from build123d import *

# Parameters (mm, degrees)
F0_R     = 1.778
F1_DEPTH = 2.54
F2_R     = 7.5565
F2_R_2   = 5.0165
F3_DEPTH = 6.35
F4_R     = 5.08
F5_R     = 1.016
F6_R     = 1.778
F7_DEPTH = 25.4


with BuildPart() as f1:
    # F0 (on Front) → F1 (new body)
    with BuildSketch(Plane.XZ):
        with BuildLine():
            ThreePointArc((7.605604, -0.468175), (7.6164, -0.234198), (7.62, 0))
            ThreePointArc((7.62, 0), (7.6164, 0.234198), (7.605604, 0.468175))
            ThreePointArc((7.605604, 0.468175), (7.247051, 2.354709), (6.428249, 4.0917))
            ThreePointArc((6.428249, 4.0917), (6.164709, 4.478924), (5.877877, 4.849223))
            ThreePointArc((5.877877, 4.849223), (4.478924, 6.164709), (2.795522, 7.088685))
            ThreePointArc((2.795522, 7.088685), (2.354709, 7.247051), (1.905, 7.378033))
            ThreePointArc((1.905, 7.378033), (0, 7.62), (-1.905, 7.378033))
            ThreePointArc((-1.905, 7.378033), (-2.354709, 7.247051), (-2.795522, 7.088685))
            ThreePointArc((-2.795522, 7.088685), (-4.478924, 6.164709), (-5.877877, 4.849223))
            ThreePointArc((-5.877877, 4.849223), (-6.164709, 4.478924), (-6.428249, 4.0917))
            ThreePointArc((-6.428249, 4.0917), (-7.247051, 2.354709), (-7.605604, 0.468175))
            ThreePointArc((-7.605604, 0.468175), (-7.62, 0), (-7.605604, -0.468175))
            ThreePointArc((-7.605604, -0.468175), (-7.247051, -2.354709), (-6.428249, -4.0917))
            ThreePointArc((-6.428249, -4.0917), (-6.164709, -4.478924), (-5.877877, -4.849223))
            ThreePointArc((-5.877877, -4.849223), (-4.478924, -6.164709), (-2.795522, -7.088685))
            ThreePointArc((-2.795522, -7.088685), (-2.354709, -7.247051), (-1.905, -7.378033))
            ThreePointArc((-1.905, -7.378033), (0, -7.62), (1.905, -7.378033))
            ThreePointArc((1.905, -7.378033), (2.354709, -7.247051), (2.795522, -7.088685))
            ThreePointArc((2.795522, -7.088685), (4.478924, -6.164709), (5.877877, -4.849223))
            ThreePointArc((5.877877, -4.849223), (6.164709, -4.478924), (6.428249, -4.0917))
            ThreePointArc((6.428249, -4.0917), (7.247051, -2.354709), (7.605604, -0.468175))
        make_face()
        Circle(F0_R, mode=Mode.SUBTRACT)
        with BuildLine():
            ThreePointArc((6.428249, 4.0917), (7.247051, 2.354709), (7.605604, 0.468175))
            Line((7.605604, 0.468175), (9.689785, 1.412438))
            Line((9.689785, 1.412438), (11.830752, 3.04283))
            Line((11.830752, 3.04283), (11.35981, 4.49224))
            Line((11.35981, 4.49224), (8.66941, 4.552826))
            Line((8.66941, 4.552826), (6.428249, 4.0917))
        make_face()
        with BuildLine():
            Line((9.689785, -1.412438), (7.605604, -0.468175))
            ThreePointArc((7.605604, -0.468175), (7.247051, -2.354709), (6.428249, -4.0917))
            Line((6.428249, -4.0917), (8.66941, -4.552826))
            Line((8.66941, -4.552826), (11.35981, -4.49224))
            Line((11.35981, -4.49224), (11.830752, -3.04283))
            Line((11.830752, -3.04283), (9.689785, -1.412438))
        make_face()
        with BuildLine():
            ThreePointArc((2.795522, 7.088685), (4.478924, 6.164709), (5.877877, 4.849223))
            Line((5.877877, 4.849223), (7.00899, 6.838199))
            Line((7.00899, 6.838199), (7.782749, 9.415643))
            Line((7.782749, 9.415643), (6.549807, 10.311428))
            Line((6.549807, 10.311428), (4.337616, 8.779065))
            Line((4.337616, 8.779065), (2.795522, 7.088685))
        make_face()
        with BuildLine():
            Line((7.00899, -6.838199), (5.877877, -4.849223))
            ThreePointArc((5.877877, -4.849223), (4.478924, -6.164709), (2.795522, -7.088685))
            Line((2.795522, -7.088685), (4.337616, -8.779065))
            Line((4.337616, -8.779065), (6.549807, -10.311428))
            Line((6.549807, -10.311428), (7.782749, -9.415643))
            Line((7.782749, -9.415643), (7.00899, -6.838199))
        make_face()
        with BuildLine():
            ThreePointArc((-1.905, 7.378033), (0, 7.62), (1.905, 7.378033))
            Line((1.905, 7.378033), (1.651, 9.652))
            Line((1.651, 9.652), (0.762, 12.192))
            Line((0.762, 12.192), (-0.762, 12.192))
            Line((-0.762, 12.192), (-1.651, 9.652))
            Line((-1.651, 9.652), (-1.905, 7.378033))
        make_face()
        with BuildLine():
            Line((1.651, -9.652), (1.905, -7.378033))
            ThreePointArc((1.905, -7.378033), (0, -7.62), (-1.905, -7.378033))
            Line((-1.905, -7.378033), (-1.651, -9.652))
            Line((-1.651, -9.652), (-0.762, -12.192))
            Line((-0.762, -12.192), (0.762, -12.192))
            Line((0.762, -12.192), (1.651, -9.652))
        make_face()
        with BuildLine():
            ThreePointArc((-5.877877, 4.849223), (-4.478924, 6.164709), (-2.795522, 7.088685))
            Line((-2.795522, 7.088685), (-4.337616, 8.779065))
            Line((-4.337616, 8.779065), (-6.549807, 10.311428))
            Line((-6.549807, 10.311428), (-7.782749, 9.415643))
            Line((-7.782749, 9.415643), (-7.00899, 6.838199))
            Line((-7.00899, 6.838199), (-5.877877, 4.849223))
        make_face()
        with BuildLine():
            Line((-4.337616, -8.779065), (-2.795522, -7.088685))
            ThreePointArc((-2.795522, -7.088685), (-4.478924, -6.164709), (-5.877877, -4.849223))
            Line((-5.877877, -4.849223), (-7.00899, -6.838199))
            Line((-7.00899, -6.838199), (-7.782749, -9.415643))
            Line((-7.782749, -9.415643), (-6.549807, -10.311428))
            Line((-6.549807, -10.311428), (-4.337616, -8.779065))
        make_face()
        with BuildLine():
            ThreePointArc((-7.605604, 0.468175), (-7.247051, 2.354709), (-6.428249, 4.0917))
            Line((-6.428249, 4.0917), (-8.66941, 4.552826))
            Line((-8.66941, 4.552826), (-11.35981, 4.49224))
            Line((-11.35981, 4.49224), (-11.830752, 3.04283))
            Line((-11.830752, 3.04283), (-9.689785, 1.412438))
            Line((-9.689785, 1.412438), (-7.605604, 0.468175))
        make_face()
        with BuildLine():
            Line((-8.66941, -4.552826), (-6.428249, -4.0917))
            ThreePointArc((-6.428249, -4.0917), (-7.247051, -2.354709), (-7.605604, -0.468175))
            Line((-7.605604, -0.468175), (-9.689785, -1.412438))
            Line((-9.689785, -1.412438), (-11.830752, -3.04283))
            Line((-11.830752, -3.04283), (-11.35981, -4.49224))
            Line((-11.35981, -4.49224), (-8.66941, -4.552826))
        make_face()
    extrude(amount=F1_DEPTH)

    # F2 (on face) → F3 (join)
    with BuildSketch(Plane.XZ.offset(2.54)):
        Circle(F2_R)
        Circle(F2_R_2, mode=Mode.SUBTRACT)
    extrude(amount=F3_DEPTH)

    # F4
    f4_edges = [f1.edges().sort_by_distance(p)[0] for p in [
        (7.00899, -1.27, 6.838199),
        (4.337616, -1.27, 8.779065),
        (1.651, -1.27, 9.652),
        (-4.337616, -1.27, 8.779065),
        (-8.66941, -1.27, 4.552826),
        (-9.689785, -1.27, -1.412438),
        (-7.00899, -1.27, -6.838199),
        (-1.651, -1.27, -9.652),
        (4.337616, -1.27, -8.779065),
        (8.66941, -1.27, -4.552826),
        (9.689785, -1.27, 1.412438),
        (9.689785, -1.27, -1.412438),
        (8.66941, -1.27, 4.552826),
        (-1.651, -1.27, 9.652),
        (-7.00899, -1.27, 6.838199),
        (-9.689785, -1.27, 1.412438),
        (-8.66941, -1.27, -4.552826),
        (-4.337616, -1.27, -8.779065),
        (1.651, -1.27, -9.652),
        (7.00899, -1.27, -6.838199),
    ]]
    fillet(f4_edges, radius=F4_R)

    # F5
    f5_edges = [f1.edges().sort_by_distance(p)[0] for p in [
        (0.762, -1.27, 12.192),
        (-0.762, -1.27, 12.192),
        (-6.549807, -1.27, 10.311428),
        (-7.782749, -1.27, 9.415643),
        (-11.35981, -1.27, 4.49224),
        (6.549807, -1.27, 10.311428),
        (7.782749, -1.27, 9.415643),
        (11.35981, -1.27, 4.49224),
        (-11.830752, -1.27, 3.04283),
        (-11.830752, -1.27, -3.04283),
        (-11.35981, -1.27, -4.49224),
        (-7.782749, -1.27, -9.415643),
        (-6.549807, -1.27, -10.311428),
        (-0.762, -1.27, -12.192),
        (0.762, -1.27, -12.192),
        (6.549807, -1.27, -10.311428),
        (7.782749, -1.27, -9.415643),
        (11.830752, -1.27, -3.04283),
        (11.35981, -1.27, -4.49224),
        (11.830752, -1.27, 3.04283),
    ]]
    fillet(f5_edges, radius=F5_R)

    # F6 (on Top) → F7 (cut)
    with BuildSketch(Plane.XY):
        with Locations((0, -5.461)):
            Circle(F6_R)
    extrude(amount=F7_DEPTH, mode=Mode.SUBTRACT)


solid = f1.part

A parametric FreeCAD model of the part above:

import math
import FreeCAD as App
import Part
import Sketcher
Q = App.Units.Quantity


def edges_at(feature, points):
    """Names of the edges that pass closest to the given points."""
    edges = feature.Shape.Edges
    near = lambda p: min(range(len(edges)), key=lambda i: edges[i].distToShape(Part.Vertex(*p))[0])
    return sorted({f"Edge{near(p) + 1}" for p in points})

doc = App.newDocument("Part")
body = doc.addObject("PartDesign::Body", "Body")

# Sketch on XZ plane
sketch1 = body.newObject("Sketcher::SketchObject", "Sketch")
sketch1.AttachmentSupport = (doc.getObject("XZ_Plane"), [""])
sketch1.MapMode = "FlatFace"
sketch1.addGeometry([
    Part.ArcOfCircle(Part.Circle(App.Vector(-0.000327, 0.00001, 0), App.Vector(0, 0, 1), 7.620327), math.radians(-3.522412), math.radians(-0.000075)),  # 0
    Part.ArcOfCircle(Part.Circle(App.Vector(-0.000327, -0.00001, 0), App.Vector(0, 0, 1), 7.620327), math.radians(0.000075), math.radians(3.522412)),  # 1
    Part.LineSegment(App.Vector(7.605604, 0.468175, 0), App.Vector(9.689785, 1.412438, 0)),  # 2
    Part.LineSegment(App.Vector(9.689785, 1.412438, 0), App.Vector(11.830752, 3.04283, 0)),  # 3
    Part.LineSegment(App.Vector(11.830752, 3.04283, 0), App.Vector(11.35981, 4.49224, 0)),  # 4
    Part.LineSegment(App.Vector(11.35981, 4.49224, 0), App.Vector(8.66941, 4.552826, 0)),  # 5
    Part.LineSegment(App.Vector(8.66941, 4.552826, 0), App.Vector(6.428249, 4.0917, 0)),  # 6
    Part.ArcOfCircle(Part.Circle(App.Vector(-0.000021, -0.00001, 0), App.Vector(0, 0, 1), 7.620023), math.radians(32.477491), math.radians(39.522442)),  # 7
    Part.LineSegment(App.Vector(5.877877, 4.849223, 0), App.Vector(7.00899, 6.838199, 0)),  # 8
    Part.LineSegment(App.Vector(7.00899, 6.838199, 0), App.Vector(7.782749, 9.415643, 0)),  # 9
    Part.LineSegment(App.Vector(7.782749, 9.415643, 0), App.Vector(6.549807, 10.311428, 0)),  # 10
    Part.LineSegment(App.Vector(6.549807, 10.311428, 0), App.Vector(4.337616, 8.779065, 0)),  # 11
    Part.LineSegment(App.Vector(4.337616, 8.779065, 0), App.Vector(2.795522, 7.088685, 0)),  # 12
    Part.ArcOfCircle(Part.Circle(App.Vector(0.000061, 0.000183, 0), App.Vector(0, 0, 1), 7.619807), math.radians(68.47743), math.radians(75.522586)),  # 13
    Part.LineSegment(App.Vector(1.905, 7.378033, 0), App.Vector(1.651, 9.652, 0)),  # 14
    Part.LineSegment(App.Vector(1.651, 9.652, 0), App.Vector(0.762, 12.192, 0)),  # 15
    Part.LineSegment(App.Vector(0.762, 12.192, 0), App.Vector(-0.762, 12.192, 0)),  # 16
    Part.LineSegment(App.Vector(-0.762, 12.192, 0), App.Vector(-1.651, 9.652, 0)),  # 17
    Part.LineSegment(App.Vector(-1.651, 9.652, 0), App.Vector(-1.905, 7.378033, 0)),  # 18
    Part.ArcOfCircle(Part.Circle(App.Vector(-0.000061, 0.000183, 0), App.Vector(0, 0, 1), 7.619807), math.radians(104.477414), math.radians(111.52257)),  # 19
    Part.LineSegment(App.Vector(-2.795522, 7.088685, 0), App.Vector(-4.337616, 8.779065, 0)),  # 20
    Part.LineSegment(App.Vector(-4.337616, 8.779065, 0), App.Vector(-6.549807, 10.311428, 0)),  # 21
    Part.LineSegment(App.Vector(-6.549807, 10.311428, 0), App.Vector(-7.782749, 9.415643, 0)),  # 22
    Part.LineSegment(App.Vector(-7.782749, 9.415643, 0), App.Vector(-7.00899, 6.838199, 0)),  # 23
    Part.LineSegment(App.Vector(-7.00899, 6.838199, 0), App.Vector(-5.877877, 4.849223, 0)),  # 24
    Part.ArcOfCircle(Part.Circle(App.Vector(0.000021, -0.00001, 0), App.Vector(0, 0, 1), 7.620023), math.radians(140.477558), math.radians(147.522509)),  # 25
    Part.LineSegment(App.Vector(-6.428249, 4.0917, 0), App.Vector(-8.66941, 4.552826, 0)),  # 26
    Part.LineSegment(App.Vector(-8.66941, 4.552826, 0), App.Vector(-11.35981, 4.49224, 0)),  # 27
    Part.LineSegment(App.Vector(-11.35981, 4.49224, 0), App.Vector(-11.830752, 3.04283, 0)),  # 28
    Part.LineSegment(App.Vector(-11.830752, 3.04283, 0), App.Vector(-9.689785, 1.412438, 0)),  # 29
    Part.LineSegment(App.Vector(-9.689785, 1.412438, 0), App.Vector(-7.605604, 0.468175, 0)),  # 30
    Part.ArcOfCircle(Part.Circle(App.Vector(0.000001, 0, 0), App.Vector(0, 0, 1), 7.620001), math.radians(176.477513), math.radians(183.522487)),  # 31
    Part.LineSegment(App.Vector(-7.605604, -0.468175, 0), App.Vector(-9.689785, -1.412438, 0)),  # 32
    Part.LineSegment(App.Vector(-9.689785, -1.412438, 0), App.Vector(-11.830752, -3.04283, 0)),  # 33
    Part.LineSegment(App.Vector(-11.830752, -3.04283, 0), App.Vector(-11.35981, -4.49224, 0)),  # 34
    Part.LineSegment(App.Vector(-11.35981, -4.49224, 0), App.Vector(-8.66941, -4.552826, 0)),  # 35
    Part.LineSegment(App.Vector(-8.66941, -4.552826, 0), App.Vector(-6.428249, -4.0917, 0)),  # 36
    Part.ArcOfCircle(Part.Circle(App.Vector(0.000021, 0.00001, 0), App.Vector(0, 0, 1), 7.620023), math.radians(-147.522509), math.radians(-140.477558)),  # 37
    Part.LineSegment(App.Vector(-5.877877, -4.849223, 0), App.Vector(-7.00899, -6.838199, 0)),  # 38
    Part.LineSegment(App.Vector(-7.00899, -6.838199, 0), App.Vector(-7.782749, -9.415643, 0)),  # 39
    Part.LineSegment(App.Vector(-7.782749, -9.415643, 0), App.Vector(-6.549807, -10.311428, 0)),  # 40
    Part.LineSegment(App.Vector(-6.549807, -10.311428, 0), App.Vector(-4.337616, -8.779065, 0)),  # 41
    Part.LineSegment(App.Vector(-4.337616, -8.779065, 0), App.Vector(-2.795522, -7.088685, 0)),  # 42
    Part.ArcOfCircle(Part.Circle(App.Vector(-0.000061, -0.000183, 0), App.Vector(0, 0, 1), 7.619807), math.radians(-111.52257), math.radians(-104.477414)),  # 43
    Part.LineSegment(App.Vector(-1.905, -7.378033, 0), App.Vector(-1.651, -9.652, 0)),  # 44
    Part.LineSegment(App.Vector(-1.651, -9.652, 0), App.Vector(-0.762, -12.192, 0)),  # 45
    Part.LineSegment(App.Vector(-0.762, -12.192, 0), App.Vector(0.762, -12.192, 0)),  # 46
    Part.LineSegment(App.Vector(0.762, -12.192, 0), App.Vector(1.651, -9.652, 0)),  # 47
    Part.LineSegment(App.Vector(1.651, -9.652, 0), App.Vector(1.905, -7.378033, 0)),  # 48
    Part.ArcOfCircle(Part.Circle(App.Vector(0.000061, -0.000183, 0), App.Vector(0, 0, 1), 7.619807), math.radians(-75.522586), math.radians(-68.47743)),  # 49
    Part.LineSegment(App.Vector(2.795522, -7.088685, 0), App.Vector(4.337616, -8.779065, 0)),  # 50
    Part.LineSegment(App.Vector(4.337616, -8.779065, 0), App.Vector(6.549807, -10.311428, 0)),  # 51
    Part.LineSegment(App.Vector(6.549807, -10.311428, 0), App.Vector(7.782749, -9.415643, 0)),  # 52
    Part.LineSegment(App.Vector(7.782749, -9.415643, 0), App.Vector(7.00899, -6.838199, 0)),  # 53
    Part.LineSegment(App.Vector(7.00899, -6.838199, 0), App.Vector(5.877877, -4.849223, 0)),  # 54
    Part.ArcOfCircle(Part.Circle(App.Vector(-0.000021, 0.00001, 0), App.Vector(0, 0, 1), 7.620023), math.radians(-39.522442), math.radians(-32.477491)),  # 55
    Part.LineSegment(App.Vector(6.428249, -4.0917, 0), App.Vector(8.66941, -4.552826, 0)),  # 56
    Part.LineSegment(App.Vector(8.66941, -4.552826, 0), App.Vector(11.35981, -4.49224, 0)),  # 57
    Part.LineSegment(App.Vector(11.35981, -4.49224, 0), App.Vector(11.830752, -3.04283, 0)),  # 58
    Part.LineSegment(App.Vector(11.830752, -3.04283, 0), App.Vector(9.689785, -1.412438, 0)),  # 59
    Part.LineSegment(App.Vector(9.689785, -1.412438, 0), App.Vector(7.605604, -0.468175, 0)),  # 60
    Part.Circle(App.Vector(0, 0, 0), App.Vector(0, 0, 1), 1.778),  # 61
], False)
sketch1.addConstraint([
    Sketcher.Constraint("Coincident", 0, 2, 1, 1),
    Sketcher.Constraint("Coincident", 1, 2, 2, 1),
    Sketcher.Constraint("Coincident", 2, 2, 3, 1),
    Sketcher.Constraint("Coincident", 3, 2, 4, 1),
    Sketcher.Constraint("Coincident", 4, 2, 5, 1),
    Sketcher.Constraint("Coincident", 5, 2, 6, 1),
    Sketcher.Constraint("Coincident", 6, 2, 7, 1),
    Sketcher.Constraint("Coincident", 7, 2, 8, 1),
    Sketcher.Constraint("Coincident", 8, 2, 9, 1),
    Sketcher.Constraint("Coincident", 9, 2, 10, 1),
    Sketcher.Constraint("Coincident", 10, 2, 11, 1),
    Sketcher.Constraint("Coincident", 11, 2, 12, 1),
    Sketcher.Constraint("Coincident", 12, 2, 13, 1),
    Sketcher.Constraint("Coincident", 13, 2, 14, 1),
    Sketcher.Constraint("Coincident", 14, 2, 15, 1),
    Sketcher.Constraint("Coincident", 15, 2, 16, 1),
    Sketcher.Constraint("Coincident", 16, 2, 17, 1),
    Sketcher.Constraint("Coincident", 17, 2, 18, 1),
    Sketcher.Constraint("Coincident", 18, 2, 19, 1),
    Sketcher.Constraint("Coincident", 19, 2, 20, 1),
    Sketcher.Constraint("Coincident", 20, 2, 21, 1),
    Sketcher.Constraint("Coincident", 21, 2, 22, 1),
    Sketcher.Constraint("Coincident", 22, 2, 23, 1),
    Sketcher.Constraint("Coincident", 23, 2, 24, 1),
    Sketcher.Constraint("Coincident", 24, 2, 25, 1),
    Sketcher.Constraint("Coincident", 25, 2, 26, 1),
    Sketcher.Constraint("Coincident", 26, 2, 27, 1),
    Sketcher.Constraint("Coincident", 27, 2, 28, 1),
    Sketcher.Constraint("Coincident", 28, 2, 29, 1),
    Sketcher.Constraint("Coincident", 29, 2, 30, 1),
    Sketcher.Constraint("Coincident", 30, 2, 31, 1),
    Sketcher.Constraint("Coincident", 31, 2, 32, 1),
    Sketcher.Constraint("Coincident", 32, 2, 33, 1),
    Sketcher.Constraint("Coincident", 33, 2, 34, 1),
    Sketcher.Constraint("Coincident", 34, 2, 35, 1),
    Sketcher.Constraint("Coincident", 35, 2, 36, 1),
    Sketcher.Constraint("Coincident", 36, 2, 37, 1),
    Sketcher.Constraint("Coincident", 37, 2, 38, 1),
    Sketcher.Constraint("Coincident", 38, 2, 39, 1),
    Sketcher.Constraint("Coincident", 39, 2, 40, 1),
    Sketcher.Constraint("Coincident", 40, 2, 41, 1),
    Sketcher.Constraint("Coincident", 41, 2, 42, 1),
    Sketcher.Constraint("Coincident", 42, 2, 43, 1),
    Sketcher.Constraint("Coincident", 43, 2, 44, 1),
    Sketcher.Constraint("Coincident", 44, 2, 45, 1),
    Sketcher.Constraint("Coincident", 45, 2, 46, 1),
    Sketcher.Constraint("Coincident", 46, 2, 47, 1),
    Sketcher.Constraint("Coincident", 47, 2, 48, 1),
    Sketcher.Constraint("Coincident", 48, 2, 49, 1),
    Sketcher.Constraint("Coincident", 49, 2, 50, 1),
    Sketcher.Constraint("Coincident", 50, 2, 51, 1),
    Sketcher.Constraint("Coincident", 51, 2, 52, 1),
    Sketcher.Constraint("Coincident", 52, 2, 53, 1),
    Sketcher.Constraint("Coincident", 53, 2, 54, 1),
    Sketcher.Constraint("Coincident", 54, 2, 55, 1),
    Sketcher.Constraint("Coincident", 55, 2, 56, 1),
    Sketcher.Constraint("Coincident", 56, 2, 57, 1),
    Sketcher.Constraint("Coincident", 57, 2, 58, 1),
    Sketcher.Constraint("Coincident", 58, 2, 59, 1),
    Sketcher.Constraint("Coincident", 59, 2, 60, 1),
    Sketcher.Constraint("Coincident", 60, 2, 0, 1),
    Sketcher.Constraint("Horizontal", 16),
    Sketcher.Constraint("Horizontal", 46),
    Sketcher.Constraint("Coincident", 31, 3, -1, 1),
    Sketcher.Constraint("Coincident", 61, 3, -1, 1),
    Sketcher.Constraint("Equal", 0, 1),
    Sketcher.Constraint("Equal", 13, 19),
    Sketcher.Constraint("Equal", 7, 25),
    Sketcher.Constraint("Equal", 25, 37),
    Sketcher.Constraint("Equal", 19, 43),
    Sketcher.Constraint("Equal", 43, 49),
    Sketcher.Constraint("Equal", 37, 55),
    Sketcher.Constraint("Symmetric", 7, 3, 37, 3, -1, 1),
    Sketcher.Constraint("Symmetric", 13, 3, 43, 3, -1, 1),
    Sketcher.Constraint("Symmetric", 19, 3, 49, 3, -1, 1),
    Sketcher.Constraint("Symmetric", 25, 3, 55, 3, -1, 1),
    Sketcher.Constraint("Symmetric", 1, 2, 31, 2, -1, 1),
    Sketcher.Constraint("Symmetric", 2, 2, 32, 2, -1, 1),
    Sketcher.Constraint("Symmetric", 3, 2, 33, 2, -1, 1),
    Sketcher.Constraint("Symmetric", 4, 2, 34, 2, -1, 1),
    Sketcher.Constraint("Symmetric", 5, 2, 35, 2, -1, 1),
    Sketcher.Constraint("Symmetric", 8, 2, 38, 2, -1, 1),
    Sketcher.Constraint("Symmetric", 9, 2, 39, 2, -1, 1),
    Sketcher.Constraint("Symmetric", 10, 2, 40, 2, -1, 1),
    Sketcher.Constraint("Symmetric", 11, 2, 41, 2, -1, 1),
    Sketcher.Constraint("Symmetric", 14, 2, 44, 2, -1, 1),
    Sketcher.Constraint("Symmetric", 15, 2, 45, 2, -1, 1),
    Sketcher.Constraint("Symmetric", 17, 2, 47, 2, -1, 1),
    Sketcher.Constraint("Symmetric", 20, 2, 50, 2, -1, 1),
    Sketcher.Constraint("Symmetric", 21, 2, 51, 2, -1, 1),
    Sketcher.Constraint("Symmetric", 22, 2, 52, 2, -1, 1),
    Sketcher.Constraint("Symmetric", 23, 2, 53, 2, -1, 1),
    Sketcher.Constraint("Symmetric", 26, 2, 56, 2, -1, 1),
    Sketcher.Constraint("Symmetric", 27, 2, 57, 2, -1, 1),
    Sketcher.Constraint("Symmetric", 28, 2, 58, 2, -1, 1),
    Sketcher.Constraint("Symmetric", 29, 2, 59, 2, -1, 1),
    Sketcher.Constraint("Symmetric", 30, 2, 60, 2, -1, 1),
    Sketcher.Constraint("Symmetric", 13, 3, 19, 3, -2),
    Sketcher.Constraint("Symmetric", 7, 3, 25, 3, -2),
    Sketcher.Constraint("Symmetric", 14, 2, 17, 2, -2),
    Sketcher.Constraint("Symmetric", 11, 2, 20, 2, -2),
    Sketcher.Constraint("Symmetric", 10, 2, 21, 2, -2),
    Sketcher.Constraint("Symmetric", 9, 2, 22, 2, -2),
    Sketcher.Constraint("Symmetric", 8, 2, 23, 2, -2),
    Sketcher.Constraint("Symmetric", 5, 2, 26, 2, -2),
    Sketcher.Constraint("Symmetric", 4, 2, 27, 2, -2),
    Sketcher.Constraint("Symmetric", 3, 2, 28, 2, -2),
    Sketcher.Constraint("Symmetric", 2, 2, 29, 2, -2),
    Sketcher.Constraint("PointOnObject", 0, 2, -1),
    Sketcher.Constraint("Parallel", 6, 36),
    Sketcher.Constraint("Parallel", 8, 38),
    Sketcher.Constraint("Parallel", 12, 42),
    Sketcher.Constraint("Parallel", 14, 44),
    Sketcher.Constraint("Parallel", 17, 47),
    Sketcher.Constraint("Parallel", 18, 48),
    Sketcher.Constraint("Parallel", 20, 50),
    Sketcher.Constraint("Parallel", 24, 54),
    Sketcher.Constraint("Parallel", 26, 56),
    Sketcher.Constraint("Horizontal", 1, 3, 7, 3),
    Sketcher.Constraint("Horizontal", 13, 2, 18, 2),
    Sketcher.Constraint("Horizontal", 12, 2, 19, 2),
    Sketcher.Constraint("Horizontal", 7, 2, 24, 2),
    Sketcher.Constraint("Horizontal", 6, 2, 25, 2),
    Sketcher.Constraint("Horizontal", 1, 2, 30, 2),
    Sketcher.Constraint("Vertical", 16, 2, 45, 2),
    Sketcher.Constraint("Equal", 3, 5),
    Sketcher.Constraint("Equal", 2, 6),
    Sketcher.Constraint("Equal", 6, 8),
    Sketcher.Constraint("Equal", 5, 9),
    Sketcher.Constraint("Equal", 4, 10),
    Sketcher.Constraint("Equal", 9, 11),
    Sketcher.Constraint("Equal", 8, 12),
    Sketcher.Constraint("Equal", 12, 14),
    Sketcher.Constraint("Equal", 11, 15),
    Sketcher.Constraint("Radius", 31, Q("0.3 in")),
    Sketcher.Constraint("Diameter", 61, Q("0.14 in")),
    Sketcher.Constraint("Angle", 4, Q("108.000005 deg")),
    Sketcher.Constraint("Angle", 10, Q("143.999994 deg")),
    Sketcher.Constraint("DistanceX", 16, 2, 16, 1, Q("0.06 in")),
    Sketcher.Constraint("DistanceX", -1, 1, 0, 2, Q("0.3 in")),
    Sketcher.Constraint("Distance", 4, Q("0.06 in")),
    Sketcher.Constraint("DistanceY", -1, 1, 14, 2, Q("0.38 in")),
    Sketcher.Constraint("DistanceY", -1, 1, 15, 2, Q("0.48 in")),
    Sketcher.Constraint("DistanceX", -1, 1, 13, 2, Q("0.075 in")),
    Sketcher.Constraint("DistanceX", -1, 1, 14, 2, Q("0.065 in")),
    Sketcher.Constraint("Radius", 0, Q("7.620327 mm")),
    Sketcher.Constraint("Radius", 7, Q("7.620023 mm")),
    Sketcher.Constraint("Radius", 13, Q("7.619807 mm")),
    Sketcher.Constraint("DistanceY", -1, 1, 6, 2, Q("4.0917 mm")),
    Sketcher.Constraint("DistanceY", -1, 1, 8, 2, Q("6.838199 mm")),
    Sketcher.Constraint("Distance", 2, Q("2.288109 mm")),
    Sketcher.Constraint("DistanceY", -1, 1, 2, 2, Q("1.412438 mm")),
    Sketcher.Constraint("DistanceY", -1, 1, 3, 2, Q("3.04283 mm")),
    Sketcher.Constraint("DistanceX", -1, 1, 4, 2, Q("11.35981 mm")),
    Sketcher.Constraint("DistanceX", -1, 1, 5, 2, Q("8.66941 mm")),
    Sketcher.Constraint("DistanceX", -1, 1, 8, 2, Q("7.00899 mm")),
    Sketcher.Constraint("DistanceX", -1, 1, 9, 2, Q("7.782749 mm")),
    Sketcher.Constraint("DistanceX", 19, 2, -1, 1, Q("2.795522 mm")),
    Sketcher.Constraint("DistanceY", -1, 1, 13, 3, Q("0.000183 mm")),
])
pad1 = body.newObject("PartDesign::Pad", "Pad")
pad1.Profile = sketch1
pad1.Length = Q("0.1 in")

# Sketch on XZ plane
sketch2 = body.newObject("Sketcher::SketchObject", "Sketch001")
sketch2.AttachmentSupport = (doc.getObject("XZ_Plane"), [""])
sketch2.MapMode = "FlatFace"
sketch2.AttachmentOffset = App.Placement(App.Vector(0, 0, 0.1 * 25.4), App.Rotation())
sketch2.addGeometry([
    Part.Circle(App.Vector(0, 0, 0), App.Vector(0, 0, 1), 7.5565),
    Part.Circle(App.Vector(0, 0, 0), App.Vector(0, 0, 1), 5.0165),
], False)
sketch2.addConstraint([
    Sketcher.Constraint("Coincident", 0, 3, -1, 1),
    Sketcher.Constraint("Coincident", 1, 3, -1, 1),
    Sketcher.Constraint("Diameter", 0, Q("0.595 in")),
    Sketcher.Constraint("Diameter", 1, Q("0.395 in")),
])
pad2 = body.newObject("PartDesign::Pad", "Pad001")
pad2.Profile = sketch2
pad2.Length = Q("0.25 in")
doc.recompute()

fillet = body.newObject("PartDesign::Fillet", "Fillet")
fillet.Base = (pad2, edges_at(pad2, [
    (7.009, -1.27, 6.838),
    (4.338, -1.27, 8.779),
    (1.651, -1.27, 9.652),
    (-4.338, -1.27, 8.779),
    (-8.669, -1.27, 4.553),
    (-9.69, -1.27, -1.412),
    (-7.009, -1.27, -6.838),
    (-1.651, -1.27, -9.652),
    (4.338, -1.27, -8.779),
    (8.669, -1.27, -4.553),
    (9.69, -1.27, 1.412),
    (9.69, -1.27, -1.412),
    (8.669, -1.27, 4.553),
    (-1.651, -1.27, 9.652),
    (-7.009, -1.27, 6.838),
    (-9.69, -1.27, 1.412),
    (-8.669, -1.27, -4.553),
    (-4.338, -1.27, -8.779),
    (1.651, -1.27, -9.652),
    (7.009, -1.27, -6.838),
]))
fillet.Radius = Q("0.2 in")
doc.recompute()

fillet2 = body.newObject("PartDesign::Fillet", "Fillet001")
fillet2.Base = (fillet, edges_at(fillet, [
    (0.762, -1.27, 12.192),
    (-0.762, -1.27, 12.192),
    (-6.55, -1.27, 10.311),
    (-7.783, -1.27, 9.416),
    (-11.36, -1.27, 4.492),
    (6.55, -1.27, 10.311),
    (7.783, -1.27, 9.416),
    (11.36, -1.27, 4.492),
    (-11.831, -1.27, 3.043),
    (-11.831, -1.27, -3.043),
    (-11.36, -1.27, -4.492),
    (-7.783, -1.27, -9.416),
    (-6.55, -1.27, -10.311),
    (-0.762, -1.27, -12.192),
    (0.762, -1.27, -12.192),
    (6.55, -1.27, -10.311),
    (7.783, -1.27, -9.416),
    (11.831, -1.27, -3.043),
    (11.36, -1.27, -4.492),
    (11.831, -1.27, 3.043),
]))
fillet2.Radius = Q("0.04 in")

# Sketch on XY plane
sketch3 = body.newObject("Sketcher::SketchObject", "Sketch002")
sketch3.AttachmentSupport = (doc.getObject("XY_Plane"), [""])
sketch3.MapMode = "FlatFace"
sketch3.addGeometry(Part.Circle(App.Vector(0, -5.461, 0), App.Vector(0, 0, 1), 1.778), False)
sketch3.addConstraint([
    Sketcher.Constraint("PointOnObject", 0, 3, -2),
    Sketcher.Constraint("Diameter", 0, Q("0.14 in")),
    Sketcher.Constraint("DistanceY", 0, 3, -1, 1, Q("0.215 in")),
])
pocket1 = body.newObject("PartDesign::Pocket", "Pocket")
pocket1.Profile = sketch3
pocket1.Length = Q("1 in")
pocket1.Reversed = True

doc.recompute()
